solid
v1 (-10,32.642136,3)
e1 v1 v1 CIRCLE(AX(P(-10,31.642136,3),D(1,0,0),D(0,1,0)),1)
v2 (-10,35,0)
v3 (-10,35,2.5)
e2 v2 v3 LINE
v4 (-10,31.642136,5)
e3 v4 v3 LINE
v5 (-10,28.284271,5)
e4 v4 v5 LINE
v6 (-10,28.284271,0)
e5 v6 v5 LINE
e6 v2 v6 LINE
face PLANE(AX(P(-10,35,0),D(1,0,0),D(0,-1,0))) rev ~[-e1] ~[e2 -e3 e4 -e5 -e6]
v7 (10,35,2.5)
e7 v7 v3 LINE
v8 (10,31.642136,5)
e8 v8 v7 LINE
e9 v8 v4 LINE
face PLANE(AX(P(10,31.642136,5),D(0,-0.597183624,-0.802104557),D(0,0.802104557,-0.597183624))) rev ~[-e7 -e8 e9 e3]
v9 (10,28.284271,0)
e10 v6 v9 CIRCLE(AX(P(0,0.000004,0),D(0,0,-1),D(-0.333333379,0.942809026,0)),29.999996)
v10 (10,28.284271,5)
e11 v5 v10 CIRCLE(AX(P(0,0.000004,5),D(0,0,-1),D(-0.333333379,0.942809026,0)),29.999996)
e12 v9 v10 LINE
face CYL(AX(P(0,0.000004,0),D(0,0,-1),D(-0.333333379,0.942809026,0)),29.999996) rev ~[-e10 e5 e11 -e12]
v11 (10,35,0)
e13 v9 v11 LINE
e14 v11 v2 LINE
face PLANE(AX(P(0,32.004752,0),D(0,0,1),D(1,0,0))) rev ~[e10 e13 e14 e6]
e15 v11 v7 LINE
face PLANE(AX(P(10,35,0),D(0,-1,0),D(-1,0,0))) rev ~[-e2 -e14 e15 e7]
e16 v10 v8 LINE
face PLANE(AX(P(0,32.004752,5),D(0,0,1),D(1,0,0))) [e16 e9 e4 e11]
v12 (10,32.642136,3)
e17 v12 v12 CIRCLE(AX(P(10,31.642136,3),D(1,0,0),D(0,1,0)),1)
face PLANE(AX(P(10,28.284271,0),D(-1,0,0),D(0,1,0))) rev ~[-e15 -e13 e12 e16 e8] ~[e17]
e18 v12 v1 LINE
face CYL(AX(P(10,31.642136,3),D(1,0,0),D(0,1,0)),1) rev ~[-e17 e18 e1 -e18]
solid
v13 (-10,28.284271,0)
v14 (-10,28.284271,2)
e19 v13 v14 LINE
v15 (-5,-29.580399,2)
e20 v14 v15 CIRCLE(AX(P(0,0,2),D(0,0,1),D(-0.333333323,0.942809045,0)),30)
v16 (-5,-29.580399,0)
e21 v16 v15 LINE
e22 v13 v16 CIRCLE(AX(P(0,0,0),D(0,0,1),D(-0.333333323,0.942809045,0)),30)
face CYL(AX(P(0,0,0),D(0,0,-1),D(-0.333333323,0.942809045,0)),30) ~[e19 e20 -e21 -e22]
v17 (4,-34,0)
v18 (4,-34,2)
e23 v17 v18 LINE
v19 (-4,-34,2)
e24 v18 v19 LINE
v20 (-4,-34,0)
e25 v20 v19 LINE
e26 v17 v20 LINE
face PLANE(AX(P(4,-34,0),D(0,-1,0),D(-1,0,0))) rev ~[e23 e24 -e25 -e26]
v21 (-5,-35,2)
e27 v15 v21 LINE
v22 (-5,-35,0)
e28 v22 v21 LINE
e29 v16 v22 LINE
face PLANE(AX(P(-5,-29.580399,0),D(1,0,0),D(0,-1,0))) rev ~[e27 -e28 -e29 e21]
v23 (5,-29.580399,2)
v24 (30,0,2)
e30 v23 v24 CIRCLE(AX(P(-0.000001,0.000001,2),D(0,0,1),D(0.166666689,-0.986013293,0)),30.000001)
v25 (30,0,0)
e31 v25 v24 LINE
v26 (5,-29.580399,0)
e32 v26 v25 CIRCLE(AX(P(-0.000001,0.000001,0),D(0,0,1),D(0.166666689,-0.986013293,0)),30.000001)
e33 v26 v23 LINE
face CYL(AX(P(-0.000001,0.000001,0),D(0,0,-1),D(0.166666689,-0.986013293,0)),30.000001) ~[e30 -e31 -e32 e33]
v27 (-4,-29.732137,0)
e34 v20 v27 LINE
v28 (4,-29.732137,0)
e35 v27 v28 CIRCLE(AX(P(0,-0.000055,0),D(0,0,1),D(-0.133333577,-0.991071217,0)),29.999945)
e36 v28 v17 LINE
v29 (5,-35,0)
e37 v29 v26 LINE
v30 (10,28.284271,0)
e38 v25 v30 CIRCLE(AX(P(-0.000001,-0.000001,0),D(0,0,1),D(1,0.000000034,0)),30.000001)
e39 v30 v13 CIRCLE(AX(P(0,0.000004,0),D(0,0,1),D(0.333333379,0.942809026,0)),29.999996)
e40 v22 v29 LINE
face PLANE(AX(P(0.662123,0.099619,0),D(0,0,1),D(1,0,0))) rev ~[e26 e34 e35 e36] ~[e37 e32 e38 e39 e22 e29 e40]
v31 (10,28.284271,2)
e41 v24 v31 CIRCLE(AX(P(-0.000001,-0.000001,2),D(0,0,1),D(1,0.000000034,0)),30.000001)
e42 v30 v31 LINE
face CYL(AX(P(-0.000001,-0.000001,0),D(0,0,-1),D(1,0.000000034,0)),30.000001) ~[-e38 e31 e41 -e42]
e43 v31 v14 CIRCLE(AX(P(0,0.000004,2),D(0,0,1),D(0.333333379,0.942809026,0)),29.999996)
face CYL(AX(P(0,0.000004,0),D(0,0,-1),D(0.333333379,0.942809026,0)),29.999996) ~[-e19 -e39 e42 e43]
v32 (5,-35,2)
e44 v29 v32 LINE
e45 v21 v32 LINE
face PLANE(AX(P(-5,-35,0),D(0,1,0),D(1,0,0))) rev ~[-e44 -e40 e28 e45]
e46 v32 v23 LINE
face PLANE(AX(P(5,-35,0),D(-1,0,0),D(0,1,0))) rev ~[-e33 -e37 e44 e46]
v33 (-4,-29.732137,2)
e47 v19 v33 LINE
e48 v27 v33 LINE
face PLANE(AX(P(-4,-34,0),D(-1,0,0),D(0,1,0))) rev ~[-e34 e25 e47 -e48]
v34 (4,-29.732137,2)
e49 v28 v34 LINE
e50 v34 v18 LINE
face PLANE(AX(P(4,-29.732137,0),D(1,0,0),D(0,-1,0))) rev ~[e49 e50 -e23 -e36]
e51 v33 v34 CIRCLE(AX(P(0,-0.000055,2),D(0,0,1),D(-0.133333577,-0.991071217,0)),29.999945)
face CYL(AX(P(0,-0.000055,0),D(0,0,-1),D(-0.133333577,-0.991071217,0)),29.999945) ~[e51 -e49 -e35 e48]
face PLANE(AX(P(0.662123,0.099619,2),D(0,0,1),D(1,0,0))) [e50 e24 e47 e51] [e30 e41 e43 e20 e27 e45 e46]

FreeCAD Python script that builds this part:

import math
import FreeCAD as App
import Part
import Sketcher


def add_polygon(sketch, points):
    """Adds a closed chain of lines whose ends are joined by coincident constraints."""
    first, n = sketch.GeometryCount, len(points)
    for a, b in zip(points, points[1:] + points[:1]):
        sketch.addGeometry(Part.LineSegment(App.Vector(*a, 0), App.Vector(*b, 0)), False)
    for i in range(n):
        sketch.addConstraint(Sketcher.Constraint("Coincident", first + i, 2, first + (i + 1) % n, 1))

doc = App.newDocument("Part")
params = doc.addObject("Spreadsheet::Sheet", "Params")
for row, (alias, value) in enumerate([
    ("sketch1_radius", "30.000001 mm"),
    ("sketch1_width", "10 mm"),
    ("sketch1_width2", "8 mm"),
    ("pad1_length", "2 mm"),
    ("sketch2_width", "20 mm"),
    ("pad2_length", "5 mm"),
    ("sketch3_diameter", "2 mm"),
    ("sketch3_height", "2.5 mm"),
], start=1):
    params.set(f"A{row}", alias)
    params.set(f"B{row}", "=" + value)
    params.setAlias(f"B{row}", alias)

body = doc.addObject("PartDesign::Body", "Body")

sketch1 = body.newObject("Sketcher::SketchObject", "Sketch")
sketch1.AttachmentSupport = (doc.getObject("XY_Plane"), [""])
sketch1.MapMode = "FlatFace"
sketch1.addGeometry([
    Part.ArcOfCircle(Part.Circle(App.Vector(0, 0, 0), App.Vector(0, 0, 1), 30), math.radians(-80), math.radians(0)),
    Part.ArcOfCircle(Part.Circle(App.Vector(0, 0, 0), App.Vector(0, 0, 1), 30), math.radians(0), math.radians(71)),
    Part.ArcOfCircle(Part.Circle(App.Vector(0, 0, 0), App.Vector(0, 0, 1), 30), math.radians(71), math.radians(109)),
    Part.ArcOfCircle(Part.Circle(App.Vector(0, 0, 0), App.Vector(0, 0, 1), 30), math.radians(109), math.radians(260)),
    Part.LineSegment(App.Vector(-5, -29.6, 0), App.Vector(-5, -35, 0)),
    Part.LineSegment(App.Vector(-5, -35, 0), App.Vector(5, -35, 0)),
    Part.LineSegment(App.Vector(5, -35, 0), App.Vector(5, -29.6, 0)),
    Part.ArcOfCircle(Part.Circle(App.Vector(0, 0, 0), App.Vector(0, 0, 1), 30), math.radians(-97.66), math.radians(-82.34)),
    Part.LineSegment(App.Vector(4, -29.7, 0), App.Vector(4, -34, 0)),
    Part.LineSegment(App.Vector(4, -34, 0), App.Vector(-4, -34, 0)),
    Part.LineSegment(App.Vector(-4, -34, 0), App.Vector(-4, -29.7, 0)),
], False)
sketch1.addConstraint([
    Sketcher.Constraint("Tangent", 0, 2, 1, 1),
    Sketcher.Constraint("Tangent", 1, 2, 2, 1),
    Sketcher.Constraint("Tangent", 2, 2, 3, 1),
    Sketcher.Constraint("Coincident", 3, 2, 4, 1),
    Sketcher.Constraint("Coincident", 4, 2, 5, 1),
    Sketcher.Constraint("Coincident", 5, 2, 6, 1),
    Sketcher.Constraint("Coincident", 6, 2, 0, 1),
    Sketcher.Constraint("Coincident", 7, 2, 8, 1),
    Sketcher.Constraint("Coincident", 8, 2, 9, 1),
    Sketcher.Constraint("Coincident", 9, 2, 10, 1),
    Sketcher.Constraint("Coincident", 10, 2, 7, 1),
    Sketcher.Constraint("Vertical", 4),
    Sketcher.Constraint("Horizontal", 5),
    Sketcher.Constraint("Vertical", 6),
    Sketcher.Constraint("Vertical", 8),
    Sketcher.Constraint("Horizontal", 9),
    Sketcher.Constraint("Vertical", 10),
    Sketcher.Constraint("Coincident", 0, 3, -1, 1),
    Sketcher.Constraint("Coincident", 2, 3, -1, 1),
    Sketcher.Constraint("Equal", 1, 3),
    Sketcher.Constraint("Symmetric", 7, 2, 10, 2, -2),
    Sketcher.Constraint("PointOnObject", 0, 2, -1),
    Sketcher.Constraint("Horizontal", 1, 2, 2, 2),
    Sketcher.Constraint("Horizontal", 3, 2, 6, 2),
    Sketcher.Constraint("Radius", 0, 30.000001),
    Sketcher.Constraint("DistanceX", 5, 1, 5, 2, 10.0),
    Sketcher.Constraint("DistanceX", 9, 2, 9, 1, 8.0),
    Sketcher.Constraint("DistanceX", -1, 1, 1, 2, 10.0),
    Sketcher.Constraint("DistanceY", 4, 2, -1, 1, 35.0),
    Sketcher.Constraint("DistanceY", 8, 2, -1, 1, 34.0),
    Sketcher.Constraint("Radius", 7, 29.999945),
    Sketcher.Constraint("DistanceY", 8, 2, 8, 1, 4.267863),
])
sketch1.setExpression("Constraints[24]", "Params.sketch1_radius")
sketch1.setExpression("Constraints[25]", "Params.sketch1_width")
sketch1.setExpression("Constraints[26]", "Params.sketch1_width2")
pad1 = body.newObject("PartDesign::Pad", "Pad")
pad1.Profile = sketch1
pad1.setExpression("Length", "Params.pad1_length")
body2 = doc.addObject("PartDesign::Body", "Body001")

sketch2 = body2.newObject("Sketcher::SketchObject", "Sketch001")
sketch2.AttachmentSupport = (doc.getObject("XY_Plane001"), [""])
sketch2.MapMode = "FlatFace"
sketch2.addGeometry([
    Part.ArcOfCircle(Part.Circle(App.Vector(0, 0, 0), App.Vector(0, 0, 1), 30), math.radians(71), math.radians(109)),
    Part.LineSegment(App.Vector(10, 28, 0), App.Vector(10, 35, 0)),
    Part.LineSegment(App.Vector(10, 35, 0), App.Vector(-10, 35, 0)),
    Part.LineSegment(App.Vector(-10, 35, 0), App.Vector(-10, 28, 0)),
], False)
sketch2.addConstraint([
    Sketcher.Constraint("Coincident", 0, 1, 1, 1),
    Sketcher.Constraint("Coincident", 1, 2, 2, 1),
    Sketcher.Constraint("Coincident", 2, 2, 3, 1),
    Sketcher.Constraint("Coincident", 3, 2, 0, 2),
    Sketcher.Constraint("Vertical", 1),
    Sketcher.Constraint("Horizontal", 2),
    Sketcher.Constraint("Vertical", 3),
    Sketcher.Constraint("Coincident", 0, 3, -1, 1),
    Sketcher.Constraint("Horizontal", 0, 1, 3, 2),
    Sketcher.Constraint("DistanceX", 2, 2, 2, 1, 20.0),
    Sketcher.Constraint("DistanceY", -1, 1, 1, 2, 35.0),
    Sketcher.Constraint("Radius", 0, 29.999996),
])
sketch2.setExpression("Constraints[9]", "Params.sketch2_width")
pad2 = body2.newObject("PartDesign::Pad", "Pad001")
pad2.Profile = sketch2
pad2.setExpression("Length", "Params.pad2_length")

sketch3 = body2.newObject("Sketcher::SketchObject", "Sketch002")
sketch3.AttachmentSupport = (doc.getObject("YZ_Plane001"), [""])
sketch3.MapMode = "FlatFace"
sketch3.AttachmentOffset = App.Placement(App.Vector(0, 0, 10), App.Rotation())
add_polygon(sketch3, [(31.6, 5), (35, 2.5), (35, 5)])
sketch3.addGeometry(Part.Circle(App.Vector(31.6, 3, 0), App.Vector(0, 0, 1), 1), False)
sketch3.addConstraint([
    Sketcher.Constraint("Vertical", 1),
    Sketcher.Constraint("Horizontal", 2),
    Sketcher.Constraint("Vertical", 3, 3, 2, 2),
    Sketcher.Constraint("Diameter", 3, 2.0),
    Sketcher.Constraint("DistanceY", 1, 1, 1, 2, 2.5),
    Sketcher.Constraint("DistanceY", -1, 1, 3, 3, 3.0),
    Sketcher.Constraint("DistanceX", -1, 1, 0, 2, 35.0),
    Sketcher.Constraint("DistanceY", -1, 1, 1, 2, 5.0),
    Sketcher.Constraint("DistanceX", 2, 2, 2, 1, 3.357864),
])
sketch3.setExpression("Constraints[6]", "Params.sketch3_diameter")
sketch3.setExpression("Constraints[7]", "Params.sketch3_height")
pocket1 = body2.newObject("PartDesign::Pocket", "Pocket")
pocket1.Profile = sketch3
pocket1.Type = "ThroughAll"

doc.recompute()
